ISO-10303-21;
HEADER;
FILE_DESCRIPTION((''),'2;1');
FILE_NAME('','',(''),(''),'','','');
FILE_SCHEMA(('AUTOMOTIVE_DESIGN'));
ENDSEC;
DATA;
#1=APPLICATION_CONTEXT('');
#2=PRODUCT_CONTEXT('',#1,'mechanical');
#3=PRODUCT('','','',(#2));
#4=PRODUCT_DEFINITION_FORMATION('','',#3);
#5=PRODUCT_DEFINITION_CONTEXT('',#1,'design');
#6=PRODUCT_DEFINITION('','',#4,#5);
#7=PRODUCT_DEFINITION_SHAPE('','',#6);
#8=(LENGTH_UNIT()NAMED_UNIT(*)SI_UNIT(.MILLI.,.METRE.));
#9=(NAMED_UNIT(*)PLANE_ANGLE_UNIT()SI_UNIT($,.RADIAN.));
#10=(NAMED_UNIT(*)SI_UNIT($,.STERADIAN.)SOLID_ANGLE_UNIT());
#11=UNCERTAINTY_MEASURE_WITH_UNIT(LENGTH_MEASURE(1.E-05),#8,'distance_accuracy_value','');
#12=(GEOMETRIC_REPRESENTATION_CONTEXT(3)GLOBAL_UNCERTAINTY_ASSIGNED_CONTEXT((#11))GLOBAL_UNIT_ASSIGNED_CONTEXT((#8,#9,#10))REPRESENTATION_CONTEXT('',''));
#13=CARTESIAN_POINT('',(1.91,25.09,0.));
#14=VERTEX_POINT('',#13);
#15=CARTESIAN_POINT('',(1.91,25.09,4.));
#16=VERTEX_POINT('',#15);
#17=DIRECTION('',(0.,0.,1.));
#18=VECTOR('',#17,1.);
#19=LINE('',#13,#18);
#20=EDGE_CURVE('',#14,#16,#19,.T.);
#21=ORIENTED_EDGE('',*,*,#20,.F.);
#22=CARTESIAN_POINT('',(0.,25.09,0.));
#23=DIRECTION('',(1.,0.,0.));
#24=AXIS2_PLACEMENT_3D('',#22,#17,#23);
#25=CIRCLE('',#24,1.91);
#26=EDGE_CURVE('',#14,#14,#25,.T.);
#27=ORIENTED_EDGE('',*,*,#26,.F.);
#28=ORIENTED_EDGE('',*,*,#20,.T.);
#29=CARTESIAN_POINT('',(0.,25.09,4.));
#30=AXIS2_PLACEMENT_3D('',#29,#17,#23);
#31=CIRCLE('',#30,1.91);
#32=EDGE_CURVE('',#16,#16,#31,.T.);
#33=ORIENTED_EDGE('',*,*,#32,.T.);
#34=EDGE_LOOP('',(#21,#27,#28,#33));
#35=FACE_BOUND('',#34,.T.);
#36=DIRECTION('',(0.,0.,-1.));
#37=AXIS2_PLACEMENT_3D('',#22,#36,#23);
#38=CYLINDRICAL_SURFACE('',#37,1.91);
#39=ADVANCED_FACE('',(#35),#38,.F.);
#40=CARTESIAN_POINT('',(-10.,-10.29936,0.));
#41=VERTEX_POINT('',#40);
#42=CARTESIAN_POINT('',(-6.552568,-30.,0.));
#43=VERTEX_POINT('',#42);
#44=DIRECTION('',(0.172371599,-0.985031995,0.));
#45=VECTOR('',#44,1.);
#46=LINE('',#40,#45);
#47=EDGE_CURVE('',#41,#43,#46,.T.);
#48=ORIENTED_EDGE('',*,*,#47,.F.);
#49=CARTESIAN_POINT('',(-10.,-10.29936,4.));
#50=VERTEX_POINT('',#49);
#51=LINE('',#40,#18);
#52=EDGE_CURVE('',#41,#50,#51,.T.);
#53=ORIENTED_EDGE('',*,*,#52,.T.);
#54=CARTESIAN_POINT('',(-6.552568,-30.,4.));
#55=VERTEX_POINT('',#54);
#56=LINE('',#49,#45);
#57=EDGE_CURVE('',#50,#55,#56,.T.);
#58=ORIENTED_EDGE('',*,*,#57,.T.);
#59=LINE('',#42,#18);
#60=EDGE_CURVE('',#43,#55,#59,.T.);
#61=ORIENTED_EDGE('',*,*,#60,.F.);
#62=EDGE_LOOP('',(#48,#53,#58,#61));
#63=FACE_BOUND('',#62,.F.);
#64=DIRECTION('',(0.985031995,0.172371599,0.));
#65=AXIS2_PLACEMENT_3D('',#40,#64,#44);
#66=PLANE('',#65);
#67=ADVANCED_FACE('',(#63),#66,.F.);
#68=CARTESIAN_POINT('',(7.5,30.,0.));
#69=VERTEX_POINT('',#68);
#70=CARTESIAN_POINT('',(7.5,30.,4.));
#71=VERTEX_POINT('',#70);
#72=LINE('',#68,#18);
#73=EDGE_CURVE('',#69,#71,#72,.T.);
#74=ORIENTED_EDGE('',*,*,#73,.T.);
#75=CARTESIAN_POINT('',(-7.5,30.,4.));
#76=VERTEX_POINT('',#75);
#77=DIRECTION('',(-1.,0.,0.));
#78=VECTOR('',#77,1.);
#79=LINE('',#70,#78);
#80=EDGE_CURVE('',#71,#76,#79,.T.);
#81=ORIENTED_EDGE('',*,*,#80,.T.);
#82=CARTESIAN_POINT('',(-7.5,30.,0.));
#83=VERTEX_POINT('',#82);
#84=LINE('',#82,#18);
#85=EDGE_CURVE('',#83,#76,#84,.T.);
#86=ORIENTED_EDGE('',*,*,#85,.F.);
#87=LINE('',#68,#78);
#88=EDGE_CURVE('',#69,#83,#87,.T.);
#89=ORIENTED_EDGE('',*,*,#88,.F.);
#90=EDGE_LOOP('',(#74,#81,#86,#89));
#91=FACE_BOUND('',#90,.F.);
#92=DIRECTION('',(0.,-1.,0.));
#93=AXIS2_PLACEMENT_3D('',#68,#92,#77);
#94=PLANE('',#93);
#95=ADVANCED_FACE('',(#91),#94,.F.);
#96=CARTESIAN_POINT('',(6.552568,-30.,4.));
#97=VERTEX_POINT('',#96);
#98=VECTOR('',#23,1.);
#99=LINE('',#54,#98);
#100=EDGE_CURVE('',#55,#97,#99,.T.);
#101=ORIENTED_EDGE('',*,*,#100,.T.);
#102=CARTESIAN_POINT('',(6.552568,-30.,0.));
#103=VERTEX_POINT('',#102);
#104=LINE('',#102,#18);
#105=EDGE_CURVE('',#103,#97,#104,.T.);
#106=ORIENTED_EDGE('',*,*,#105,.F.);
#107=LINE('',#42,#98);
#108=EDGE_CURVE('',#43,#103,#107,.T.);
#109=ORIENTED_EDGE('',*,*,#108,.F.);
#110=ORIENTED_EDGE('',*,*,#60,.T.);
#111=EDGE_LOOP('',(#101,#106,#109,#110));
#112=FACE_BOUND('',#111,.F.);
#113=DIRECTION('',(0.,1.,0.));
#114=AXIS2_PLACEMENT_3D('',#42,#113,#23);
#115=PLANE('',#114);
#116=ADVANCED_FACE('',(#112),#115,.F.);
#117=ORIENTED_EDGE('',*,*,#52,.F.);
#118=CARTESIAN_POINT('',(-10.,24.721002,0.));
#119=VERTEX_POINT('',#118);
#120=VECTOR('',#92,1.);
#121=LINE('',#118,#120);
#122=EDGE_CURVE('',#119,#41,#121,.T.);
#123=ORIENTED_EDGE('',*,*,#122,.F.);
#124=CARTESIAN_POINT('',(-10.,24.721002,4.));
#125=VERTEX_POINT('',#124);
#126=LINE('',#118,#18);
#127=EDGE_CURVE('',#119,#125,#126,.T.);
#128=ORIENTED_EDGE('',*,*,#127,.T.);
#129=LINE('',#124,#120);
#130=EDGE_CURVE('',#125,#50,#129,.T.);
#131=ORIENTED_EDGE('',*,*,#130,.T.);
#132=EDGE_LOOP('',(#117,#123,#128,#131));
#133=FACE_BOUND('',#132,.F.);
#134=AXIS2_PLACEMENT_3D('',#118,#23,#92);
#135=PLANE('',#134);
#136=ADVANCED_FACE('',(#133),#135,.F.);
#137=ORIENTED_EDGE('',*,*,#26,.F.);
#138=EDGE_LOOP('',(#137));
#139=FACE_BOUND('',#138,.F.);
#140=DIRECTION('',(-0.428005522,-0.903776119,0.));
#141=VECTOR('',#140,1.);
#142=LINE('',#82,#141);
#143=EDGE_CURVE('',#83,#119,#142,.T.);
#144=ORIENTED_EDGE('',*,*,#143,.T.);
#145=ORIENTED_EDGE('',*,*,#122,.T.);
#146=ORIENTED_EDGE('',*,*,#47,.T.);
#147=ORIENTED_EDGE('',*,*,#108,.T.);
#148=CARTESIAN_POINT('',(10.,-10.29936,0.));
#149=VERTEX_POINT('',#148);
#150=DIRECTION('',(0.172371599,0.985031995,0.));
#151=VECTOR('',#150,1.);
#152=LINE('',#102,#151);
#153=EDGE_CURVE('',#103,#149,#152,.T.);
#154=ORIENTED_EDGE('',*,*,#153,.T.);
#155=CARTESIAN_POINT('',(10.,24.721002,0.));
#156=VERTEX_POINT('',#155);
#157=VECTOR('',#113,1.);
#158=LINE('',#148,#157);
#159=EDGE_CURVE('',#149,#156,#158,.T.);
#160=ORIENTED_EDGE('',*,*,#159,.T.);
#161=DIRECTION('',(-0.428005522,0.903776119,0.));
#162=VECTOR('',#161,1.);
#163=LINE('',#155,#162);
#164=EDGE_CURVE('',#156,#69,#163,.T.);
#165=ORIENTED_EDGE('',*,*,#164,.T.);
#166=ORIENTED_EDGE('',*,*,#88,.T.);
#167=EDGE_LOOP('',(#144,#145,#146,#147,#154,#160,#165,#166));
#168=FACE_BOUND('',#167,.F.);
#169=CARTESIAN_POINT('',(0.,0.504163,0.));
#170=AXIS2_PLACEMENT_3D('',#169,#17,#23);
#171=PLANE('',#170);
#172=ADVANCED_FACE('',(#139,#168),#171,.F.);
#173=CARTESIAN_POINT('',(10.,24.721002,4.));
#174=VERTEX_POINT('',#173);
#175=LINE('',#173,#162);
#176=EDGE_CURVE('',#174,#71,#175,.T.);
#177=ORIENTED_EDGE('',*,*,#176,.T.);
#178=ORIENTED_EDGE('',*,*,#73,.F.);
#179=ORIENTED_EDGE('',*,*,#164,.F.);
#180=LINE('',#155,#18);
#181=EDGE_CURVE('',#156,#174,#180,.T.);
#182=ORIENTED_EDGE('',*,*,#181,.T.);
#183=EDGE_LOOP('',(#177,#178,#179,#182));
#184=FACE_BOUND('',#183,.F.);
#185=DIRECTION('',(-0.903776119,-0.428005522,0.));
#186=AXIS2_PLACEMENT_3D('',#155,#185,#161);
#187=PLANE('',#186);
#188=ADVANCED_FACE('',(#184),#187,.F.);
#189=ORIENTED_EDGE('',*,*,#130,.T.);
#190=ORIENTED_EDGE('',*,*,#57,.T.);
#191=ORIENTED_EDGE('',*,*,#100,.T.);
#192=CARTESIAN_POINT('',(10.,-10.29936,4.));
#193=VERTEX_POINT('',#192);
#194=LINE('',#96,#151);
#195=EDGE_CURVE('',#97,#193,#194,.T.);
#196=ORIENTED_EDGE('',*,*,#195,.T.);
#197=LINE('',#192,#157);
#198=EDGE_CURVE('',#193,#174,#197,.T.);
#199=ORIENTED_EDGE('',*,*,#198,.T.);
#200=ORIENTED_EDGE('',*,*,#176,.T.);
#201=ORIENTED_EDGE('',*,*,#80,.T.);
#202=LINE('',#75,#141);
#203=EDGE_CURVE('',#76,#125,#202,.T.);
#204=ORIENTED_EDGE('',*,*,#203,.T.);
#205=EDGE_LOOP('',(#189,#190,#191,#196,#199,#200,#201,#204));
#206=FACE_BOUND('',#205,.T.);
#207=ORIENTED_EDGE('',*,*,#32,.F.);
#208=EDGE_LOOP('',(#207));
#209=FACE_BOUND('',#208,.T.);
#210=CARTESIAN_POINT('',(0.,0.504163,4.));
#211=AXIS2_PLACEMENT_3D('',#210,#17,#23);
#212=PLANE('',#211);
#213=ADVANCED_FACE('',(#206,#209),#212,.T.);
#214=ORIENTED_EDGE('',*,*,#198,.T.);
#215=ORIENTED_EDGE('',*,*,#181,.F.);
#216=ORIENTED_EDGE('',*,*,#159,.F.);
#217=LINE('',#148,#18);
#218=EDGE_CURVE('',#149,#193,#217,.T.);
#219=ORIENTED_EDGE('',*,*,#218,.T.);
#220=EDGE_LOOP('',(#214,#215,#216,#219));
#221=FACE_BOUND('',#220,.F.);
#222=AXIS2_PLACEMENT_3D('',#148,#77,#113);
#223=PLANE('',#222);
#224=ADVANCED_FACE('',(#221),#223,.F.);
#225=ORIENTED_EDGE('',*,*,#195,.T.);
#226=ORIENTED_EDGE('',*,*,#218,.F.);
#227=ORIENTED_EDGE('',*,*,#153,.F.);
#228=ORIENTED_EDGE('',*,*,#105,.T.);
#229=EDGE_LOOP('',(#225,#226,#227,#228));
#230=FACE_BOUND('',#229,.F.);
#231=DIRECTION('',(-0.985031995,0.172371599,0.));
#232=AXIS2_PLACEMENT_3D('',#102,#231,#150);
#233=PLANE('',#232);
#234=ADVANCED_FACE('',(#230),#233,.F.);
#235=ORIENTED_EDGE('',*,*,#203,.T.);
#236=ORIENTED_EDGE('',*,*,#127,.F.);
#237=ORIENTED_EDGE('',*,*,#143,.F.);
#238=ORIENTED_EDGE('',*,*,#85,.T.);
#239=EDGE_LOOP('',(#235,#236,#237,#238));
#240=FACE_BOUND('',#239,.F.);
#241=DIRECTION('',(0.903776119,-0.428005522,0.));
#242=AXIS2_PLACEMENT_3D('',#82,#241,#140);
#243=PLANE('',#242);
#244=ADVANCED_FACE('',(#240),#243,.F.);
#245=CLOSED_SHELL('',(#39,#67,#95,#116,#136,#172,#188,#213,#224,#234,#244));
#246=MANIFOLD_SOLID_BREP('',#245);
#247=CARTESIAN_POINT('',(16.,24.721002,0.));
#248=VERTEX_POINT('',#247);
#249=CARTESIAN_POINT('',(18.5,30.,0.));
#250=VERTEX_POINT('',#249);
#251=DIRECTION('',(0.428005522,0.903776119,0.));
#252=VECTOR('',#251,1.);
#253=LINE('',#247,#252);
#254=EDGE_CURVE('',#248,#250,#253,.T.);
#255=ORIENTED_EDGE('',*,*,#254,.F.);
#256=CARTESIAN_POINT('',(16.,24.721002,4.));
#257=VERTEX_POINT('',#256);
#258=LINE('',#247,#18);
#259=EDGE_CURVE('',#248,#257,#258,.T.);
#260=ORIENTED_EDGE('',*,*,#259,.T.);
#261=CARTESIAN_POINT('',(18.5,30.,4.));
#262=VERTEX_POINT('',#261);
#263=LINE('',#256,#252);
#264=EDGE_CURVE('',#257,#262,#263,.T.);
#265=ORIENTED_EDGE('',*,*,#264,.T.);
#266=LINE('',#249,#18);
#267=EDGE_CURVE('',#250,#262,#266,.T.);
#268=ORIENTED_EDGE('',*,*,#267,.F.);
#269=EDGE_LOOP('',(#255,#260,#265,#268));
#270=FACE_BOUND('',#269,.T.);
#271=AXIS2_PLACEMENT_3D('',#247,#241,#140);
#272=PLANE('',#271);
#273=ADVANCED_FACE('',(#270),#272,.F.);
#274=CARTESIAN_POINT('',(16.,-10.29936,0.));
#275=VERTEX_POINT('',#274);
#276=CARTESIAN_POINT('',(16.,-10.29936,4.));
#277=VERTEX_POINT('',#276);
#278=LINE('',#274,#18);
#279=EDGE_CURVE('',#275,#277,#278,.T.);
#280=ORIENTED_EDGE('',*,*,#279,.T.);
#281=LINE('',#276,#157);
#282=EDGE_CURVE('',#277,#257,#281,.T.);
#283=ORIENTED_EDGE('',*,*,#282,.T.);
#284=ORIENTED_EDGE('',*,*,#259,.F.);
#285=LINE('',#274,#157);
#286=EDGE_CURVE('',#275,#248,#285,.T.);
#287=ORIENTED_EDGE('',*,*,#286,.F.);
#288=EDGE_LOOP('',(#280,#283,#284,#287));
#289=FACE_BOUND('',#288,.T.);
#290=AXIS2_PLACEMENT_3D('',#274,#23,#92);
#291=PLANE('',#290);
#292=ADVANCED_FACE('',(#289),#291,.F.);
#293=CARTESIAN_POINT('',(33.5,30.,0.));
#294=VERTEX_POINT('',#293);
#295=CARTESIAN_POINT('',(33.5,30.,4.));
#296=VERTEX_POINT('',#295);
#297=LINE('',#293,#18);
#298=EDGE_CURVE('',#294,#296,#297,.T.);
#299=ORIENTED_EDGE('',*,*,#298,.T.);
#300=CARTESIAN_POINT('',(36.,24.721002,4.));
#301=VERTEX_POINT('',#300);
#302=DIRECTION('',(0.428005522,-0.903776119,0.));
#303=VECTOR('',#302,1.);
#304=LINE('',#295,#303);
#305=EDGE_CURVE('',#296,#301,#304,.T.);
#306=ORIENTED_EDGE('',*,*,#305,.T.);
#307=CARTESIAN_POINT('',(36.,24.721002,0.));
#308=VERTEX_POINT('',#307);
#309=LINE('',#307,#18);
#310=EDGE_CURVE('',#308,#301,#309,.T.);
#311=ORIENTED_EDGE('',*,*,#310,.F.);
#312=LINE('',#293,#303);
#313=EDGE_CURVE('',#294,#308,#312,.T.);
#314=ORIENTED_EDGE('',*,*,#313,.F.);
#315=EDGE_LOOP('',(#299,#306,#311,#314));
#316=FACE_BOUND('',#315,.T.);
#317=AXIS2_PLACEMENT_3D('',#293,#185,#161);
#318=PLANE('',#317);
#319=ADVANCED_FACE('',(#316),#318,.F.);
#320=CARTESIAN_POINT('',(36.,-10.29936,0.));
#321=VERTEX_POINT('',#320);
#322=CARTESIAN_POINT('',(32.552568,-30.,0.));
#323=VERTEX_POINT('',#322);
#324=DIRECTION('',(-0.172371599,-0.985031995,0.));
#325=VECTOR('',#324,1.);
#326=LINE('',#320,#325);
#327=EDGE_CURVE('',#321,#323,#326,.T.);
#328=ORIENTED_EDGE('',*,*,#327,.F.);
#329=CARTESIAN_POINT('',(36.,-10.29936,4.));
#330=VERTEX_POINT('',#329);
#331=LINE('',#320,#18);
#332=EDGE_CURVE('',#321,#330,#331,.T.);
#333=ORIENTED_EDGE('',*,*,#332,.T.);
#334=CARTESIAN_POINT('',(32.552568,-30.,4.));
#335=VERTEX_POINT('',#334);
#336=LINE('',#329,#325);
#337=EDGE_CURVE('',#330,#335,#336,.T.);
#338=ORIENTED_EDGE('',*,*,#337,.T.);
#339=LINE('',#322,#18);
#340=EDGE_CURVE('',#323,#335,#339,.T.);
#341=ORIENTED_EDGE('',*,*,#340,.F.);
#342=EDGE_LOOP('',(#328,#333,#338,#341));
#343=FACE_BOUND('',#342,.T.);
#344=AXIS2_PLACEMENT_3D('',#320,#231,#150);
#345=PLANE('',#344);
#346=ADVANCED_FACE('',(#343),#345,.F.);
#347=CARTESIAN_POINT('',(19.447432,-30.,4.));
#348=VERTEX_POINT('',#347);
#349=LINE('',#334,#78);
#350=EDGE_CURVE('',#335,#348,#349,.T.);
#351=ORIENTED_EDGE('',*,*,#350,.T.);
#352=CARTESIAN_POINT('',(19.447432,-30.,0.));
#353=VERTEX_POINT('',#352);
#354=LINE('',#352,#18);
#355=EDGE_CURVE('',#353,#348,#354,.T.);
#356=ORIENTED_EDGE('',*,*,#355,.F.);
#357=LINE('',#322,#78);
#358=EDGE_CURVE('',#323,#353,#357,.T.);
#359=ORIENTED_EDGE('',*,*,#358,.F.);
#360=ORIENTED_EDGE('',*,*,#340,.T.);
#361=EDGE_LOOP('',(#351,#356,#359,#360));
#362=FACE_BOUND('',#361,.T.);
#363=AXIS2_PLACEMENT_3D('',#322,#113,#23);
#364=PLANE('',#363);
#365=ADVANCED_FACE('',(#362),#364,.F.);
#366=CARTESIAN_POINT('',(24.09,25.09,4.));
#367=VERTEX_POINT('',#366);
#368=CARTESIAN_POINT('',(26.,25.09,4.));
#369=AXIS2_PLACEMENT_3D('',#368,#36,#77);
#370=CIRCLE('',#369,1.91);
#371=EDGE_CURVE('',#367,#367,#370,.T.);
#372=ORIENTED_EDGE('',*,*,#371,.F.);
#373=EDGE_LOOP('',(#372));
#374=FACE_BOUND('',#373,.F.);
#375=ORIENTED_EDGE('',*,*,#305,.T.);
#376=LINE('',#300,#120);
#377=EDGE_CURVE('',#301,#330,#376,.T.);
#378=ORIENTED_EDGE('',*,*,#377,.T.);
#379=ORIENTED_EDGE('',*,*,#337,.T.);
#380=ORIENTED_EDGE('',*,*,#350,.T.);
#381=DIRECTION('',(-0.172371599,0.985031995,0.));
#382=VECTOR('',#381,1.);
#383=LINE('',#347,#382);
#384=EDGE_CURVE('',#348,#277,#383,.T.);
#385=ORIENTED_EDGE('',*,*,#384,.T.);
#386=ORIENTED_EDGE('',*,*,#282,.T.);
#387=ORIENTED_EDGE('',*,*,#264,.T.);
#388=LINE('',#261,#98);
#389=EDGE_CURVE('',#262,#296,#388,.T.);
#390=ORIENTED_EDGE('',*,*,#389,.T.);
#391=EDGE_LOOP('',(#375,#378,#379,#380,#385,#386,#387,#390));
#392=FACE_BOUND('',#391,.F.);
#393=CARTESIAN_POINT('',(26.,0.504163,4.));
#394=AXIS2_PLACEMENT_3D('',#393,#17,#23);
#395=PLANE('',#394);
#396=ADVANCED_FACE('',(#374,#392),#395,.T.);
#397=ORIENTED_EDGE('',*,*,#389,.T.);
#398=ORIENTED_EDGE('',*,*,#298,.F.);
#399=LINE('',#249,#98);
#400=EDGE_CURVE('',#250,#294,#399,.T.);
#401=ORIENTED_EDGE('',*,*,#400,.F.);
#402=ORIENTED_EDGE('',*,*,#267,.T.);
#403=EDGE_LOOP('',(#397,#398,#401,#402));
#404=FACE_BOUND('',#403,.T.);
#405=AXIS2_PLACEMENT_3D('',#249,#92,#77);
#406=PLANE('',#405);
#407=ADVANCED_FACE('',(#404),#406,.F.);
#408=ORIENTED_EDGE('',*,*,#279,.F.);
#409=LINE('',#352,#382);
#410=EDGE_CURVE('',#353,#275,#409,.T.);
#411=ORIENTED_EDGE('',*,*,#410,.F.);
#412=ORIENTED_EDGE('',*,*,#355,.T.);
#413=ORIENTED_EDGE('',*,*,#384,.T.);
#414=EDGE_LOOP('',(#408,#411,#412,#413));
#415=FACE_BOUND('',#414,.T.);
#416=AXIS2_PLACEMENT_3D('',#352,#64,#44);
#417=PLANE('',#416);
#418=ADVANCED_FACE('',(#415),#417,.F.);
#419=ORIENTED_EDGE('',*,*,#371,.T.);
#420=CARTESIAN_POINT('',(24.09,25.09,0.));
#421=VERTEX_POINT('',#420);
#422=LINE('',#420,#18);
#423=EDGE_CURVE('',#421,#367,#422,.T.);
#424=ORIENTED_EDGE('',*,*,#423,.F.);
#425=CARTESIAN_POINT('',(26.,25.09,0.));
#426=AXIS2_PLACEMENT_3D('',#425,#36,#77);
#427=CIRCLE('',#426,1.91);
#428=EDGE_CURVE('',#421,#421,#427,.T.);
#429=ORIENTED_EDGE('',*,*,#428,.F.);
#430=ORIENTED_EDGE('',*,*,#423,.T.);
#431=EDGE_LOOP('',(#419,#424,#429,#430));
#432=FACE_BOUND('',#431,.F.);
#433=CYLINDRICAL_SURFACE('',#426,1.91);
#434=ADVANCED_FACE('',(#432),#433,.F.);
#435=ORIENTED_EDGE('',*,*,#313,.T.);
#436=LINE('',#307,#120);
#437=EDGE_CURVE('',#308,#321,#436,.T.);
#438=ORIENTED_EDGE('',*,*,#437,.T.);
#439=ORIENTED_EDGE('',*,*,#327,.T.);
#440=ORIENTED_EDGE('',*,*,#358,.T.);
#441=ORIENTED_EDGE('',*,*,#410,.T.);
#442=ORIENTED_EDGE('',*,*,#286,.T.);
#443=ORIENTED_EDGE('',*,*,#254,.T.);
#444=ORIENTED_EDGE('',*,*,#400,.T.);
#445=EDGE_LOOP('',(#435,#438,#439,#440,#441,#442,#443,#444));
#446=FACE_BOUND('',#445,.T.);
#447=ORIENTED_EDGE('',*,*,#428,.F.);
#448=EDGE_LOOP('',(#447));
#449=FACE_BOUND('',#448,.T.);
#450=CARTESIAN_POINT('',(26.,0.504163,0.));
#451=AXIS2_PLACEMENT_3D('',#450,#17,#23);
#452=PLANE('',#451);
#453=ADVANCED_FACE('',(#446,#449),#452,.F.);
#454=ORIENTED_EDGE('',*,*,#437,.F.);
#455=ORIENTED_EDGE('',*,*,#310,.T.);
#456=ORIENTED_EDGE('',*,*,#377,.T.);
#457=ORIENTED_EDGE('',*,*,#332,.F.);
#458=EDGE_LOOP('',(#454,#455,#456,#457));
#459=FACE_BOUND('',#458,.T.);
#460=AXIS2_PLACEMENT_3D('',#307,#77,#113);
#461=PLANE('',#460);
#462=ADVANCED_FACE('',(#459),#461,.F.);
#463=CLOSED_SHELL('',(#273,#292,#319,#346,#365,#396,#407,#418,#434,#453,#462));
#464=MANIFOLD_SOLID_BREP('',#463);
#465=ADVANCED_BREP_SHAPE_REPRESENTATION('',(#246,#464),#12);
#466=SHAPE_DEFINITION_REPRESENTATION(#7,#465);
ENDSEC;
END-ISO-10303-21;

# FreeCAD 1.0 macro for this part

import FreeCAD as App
import Part
import Sketcher

V = App.Vector

doc = App.newDocument("Part")
params = doc.addObject("Spreadsheet::Sheet", "Params")
for row, (alias, value) in enumerate([
    ("sketch1_diameter", "3.82 mm"),
    ("sketch1_width", "15 mm"),
    ("sketch1_length", "20 mm"),
    ("pad1_length", "4 mm"),
], start=1):
    params.set(f"A{row}", alias)
    params.set(f"B{row}", "=" + value)
    params.setAlias(f"B{row}", alias)

body = doc.addObject("PartDesign::Body", "Body")

sketch1 = body.newObject("Sketcher::SketchObject", "Sketch")
sketch1.AttachmentSupport = (doc.getObject("XY_Plane"), [""])
sketch1.MapMode = "FlatFace"
sketch1.addGeometry([
    Part.LineSegment(V(-6.552568, -30, 0), V(6.552568, -30, 0)),
    Part.LineSegment(V(6.552568, -30, 0), V(10, -10.29936, 0)),
    Part.LineSegment(V(10, -10.29936, 0), V(10, 24.721002, 0)),
    Part.LineSegment(V(10, 24.721002, 0), V(7.5, 30, 0)),
    Part.LineSegment(V(7.5, 30, 0), V(-7.5, 30, 0)),
    Part.LineSegment(V(-7.5, 30, 0), V(-10, 24.721002, 0)),
    Part.LineSegment(V(-10, 24.721002, 0), V(-10, -10.29936, 0)),
    Part.LineSegment(V(-10, -10.29936, 0), V(-6.552568, -30, 0)),
    Part.Circle(V(0, 25.09, 0), V(0, 0, 1), 1.91),
], False)
sketch1.addConstraint([
    Sketcher.Constraint("Coincident", 0, 2, 1, 1),
    Sketcher.Constraint("Coincident", 1, 2, 2, 1),
    Sketcher.Constraint("Coincident", 2, 2, 3, 1),
    Sketcher.Constraint("Coincident", 3, 2, 4, 1),
    Sketcher.Constraint("Coincident", 4, 2, 5, 1),
    Sketcher.Constraint("Coincident", 5, 2, 6, 1),
    Sketcher.Constraint("Coincident", 6, 2, 7, 1),
    Sketcher.Constraint("Coincident", 7, 2, 0, 1),
    Sketcher.Constraint("Horizontal", 0),
    Sketcher.Constraint("Vertical", 2),
    Sketcher.Constraint("Horizontal", 4),
    Sketcher.Constraint("Vertical", 6),
    Sketcher.Constraint("Symmetric", 2, 2, 5, 2, -2),
    Sketcher.Constraint("PointOnObject", 8, 3, -2),
    Sketcher.Constraint("Horizontal", 1, 2, 6, 2),
    Sketcher.Constraint("Equal", 3, 5),
    Sketcher.Constraint("Equal", 1, 7),
    Sketcher.Constraint("Diameter", 8, 3.82),
    Sketcher.Constraint("DistanceX", 4, 2, 4, 1, 15.0),
    Sketcher.Constraint("Distance", 1, 20.0),
    Sketcher.Constraint("DistanceY", 0, 2, -1, 1, 30.0),
    Sketcher.Constraint("DistanceX", -1, 1, 1, 2, 10.0),
    Sketcher.Constraint("DistanceY", -1, 1, 3, 2, 30.0),
    Sketcher.Constraint("DistanceY", -1, 1, 8, 3, 25.09),
    Sketcher.Constraint("DistanceY", -1, 1, 2, 2, 24.721002),
    Sketcher.Constraint("DistanceX", 0, 1, 0, 2, 13.105136),
])
sketch1.setExpression("Constraints[17]", "Params.sketch1_diameter")
sketch1.setExpression("Constraints[18]", "Params.sketch1_width")
sketch1.setExpression("Constraints[19]", "Params.sketch1_length")
pad1 = body.newObject("PartDesign::Pad", "Pad")
pad1.Profile = sketch1
pad1.setExpression("Length", "Params.pad1_length")
body2 = doc.addObject("PartDesign::Body", "Body001")
doc.recompute()

mirroring = doc.addObject("Part::Mirroring", "Mirroring")
mirroring.Source = body
mirroring.Base = V(13, 0, 0)
mirroring.Normal = V(1, 0, 0)
body2.BaseFeature = mirroring
doc.recompute()
mirroring.Visibility = False

doc.recompute()
